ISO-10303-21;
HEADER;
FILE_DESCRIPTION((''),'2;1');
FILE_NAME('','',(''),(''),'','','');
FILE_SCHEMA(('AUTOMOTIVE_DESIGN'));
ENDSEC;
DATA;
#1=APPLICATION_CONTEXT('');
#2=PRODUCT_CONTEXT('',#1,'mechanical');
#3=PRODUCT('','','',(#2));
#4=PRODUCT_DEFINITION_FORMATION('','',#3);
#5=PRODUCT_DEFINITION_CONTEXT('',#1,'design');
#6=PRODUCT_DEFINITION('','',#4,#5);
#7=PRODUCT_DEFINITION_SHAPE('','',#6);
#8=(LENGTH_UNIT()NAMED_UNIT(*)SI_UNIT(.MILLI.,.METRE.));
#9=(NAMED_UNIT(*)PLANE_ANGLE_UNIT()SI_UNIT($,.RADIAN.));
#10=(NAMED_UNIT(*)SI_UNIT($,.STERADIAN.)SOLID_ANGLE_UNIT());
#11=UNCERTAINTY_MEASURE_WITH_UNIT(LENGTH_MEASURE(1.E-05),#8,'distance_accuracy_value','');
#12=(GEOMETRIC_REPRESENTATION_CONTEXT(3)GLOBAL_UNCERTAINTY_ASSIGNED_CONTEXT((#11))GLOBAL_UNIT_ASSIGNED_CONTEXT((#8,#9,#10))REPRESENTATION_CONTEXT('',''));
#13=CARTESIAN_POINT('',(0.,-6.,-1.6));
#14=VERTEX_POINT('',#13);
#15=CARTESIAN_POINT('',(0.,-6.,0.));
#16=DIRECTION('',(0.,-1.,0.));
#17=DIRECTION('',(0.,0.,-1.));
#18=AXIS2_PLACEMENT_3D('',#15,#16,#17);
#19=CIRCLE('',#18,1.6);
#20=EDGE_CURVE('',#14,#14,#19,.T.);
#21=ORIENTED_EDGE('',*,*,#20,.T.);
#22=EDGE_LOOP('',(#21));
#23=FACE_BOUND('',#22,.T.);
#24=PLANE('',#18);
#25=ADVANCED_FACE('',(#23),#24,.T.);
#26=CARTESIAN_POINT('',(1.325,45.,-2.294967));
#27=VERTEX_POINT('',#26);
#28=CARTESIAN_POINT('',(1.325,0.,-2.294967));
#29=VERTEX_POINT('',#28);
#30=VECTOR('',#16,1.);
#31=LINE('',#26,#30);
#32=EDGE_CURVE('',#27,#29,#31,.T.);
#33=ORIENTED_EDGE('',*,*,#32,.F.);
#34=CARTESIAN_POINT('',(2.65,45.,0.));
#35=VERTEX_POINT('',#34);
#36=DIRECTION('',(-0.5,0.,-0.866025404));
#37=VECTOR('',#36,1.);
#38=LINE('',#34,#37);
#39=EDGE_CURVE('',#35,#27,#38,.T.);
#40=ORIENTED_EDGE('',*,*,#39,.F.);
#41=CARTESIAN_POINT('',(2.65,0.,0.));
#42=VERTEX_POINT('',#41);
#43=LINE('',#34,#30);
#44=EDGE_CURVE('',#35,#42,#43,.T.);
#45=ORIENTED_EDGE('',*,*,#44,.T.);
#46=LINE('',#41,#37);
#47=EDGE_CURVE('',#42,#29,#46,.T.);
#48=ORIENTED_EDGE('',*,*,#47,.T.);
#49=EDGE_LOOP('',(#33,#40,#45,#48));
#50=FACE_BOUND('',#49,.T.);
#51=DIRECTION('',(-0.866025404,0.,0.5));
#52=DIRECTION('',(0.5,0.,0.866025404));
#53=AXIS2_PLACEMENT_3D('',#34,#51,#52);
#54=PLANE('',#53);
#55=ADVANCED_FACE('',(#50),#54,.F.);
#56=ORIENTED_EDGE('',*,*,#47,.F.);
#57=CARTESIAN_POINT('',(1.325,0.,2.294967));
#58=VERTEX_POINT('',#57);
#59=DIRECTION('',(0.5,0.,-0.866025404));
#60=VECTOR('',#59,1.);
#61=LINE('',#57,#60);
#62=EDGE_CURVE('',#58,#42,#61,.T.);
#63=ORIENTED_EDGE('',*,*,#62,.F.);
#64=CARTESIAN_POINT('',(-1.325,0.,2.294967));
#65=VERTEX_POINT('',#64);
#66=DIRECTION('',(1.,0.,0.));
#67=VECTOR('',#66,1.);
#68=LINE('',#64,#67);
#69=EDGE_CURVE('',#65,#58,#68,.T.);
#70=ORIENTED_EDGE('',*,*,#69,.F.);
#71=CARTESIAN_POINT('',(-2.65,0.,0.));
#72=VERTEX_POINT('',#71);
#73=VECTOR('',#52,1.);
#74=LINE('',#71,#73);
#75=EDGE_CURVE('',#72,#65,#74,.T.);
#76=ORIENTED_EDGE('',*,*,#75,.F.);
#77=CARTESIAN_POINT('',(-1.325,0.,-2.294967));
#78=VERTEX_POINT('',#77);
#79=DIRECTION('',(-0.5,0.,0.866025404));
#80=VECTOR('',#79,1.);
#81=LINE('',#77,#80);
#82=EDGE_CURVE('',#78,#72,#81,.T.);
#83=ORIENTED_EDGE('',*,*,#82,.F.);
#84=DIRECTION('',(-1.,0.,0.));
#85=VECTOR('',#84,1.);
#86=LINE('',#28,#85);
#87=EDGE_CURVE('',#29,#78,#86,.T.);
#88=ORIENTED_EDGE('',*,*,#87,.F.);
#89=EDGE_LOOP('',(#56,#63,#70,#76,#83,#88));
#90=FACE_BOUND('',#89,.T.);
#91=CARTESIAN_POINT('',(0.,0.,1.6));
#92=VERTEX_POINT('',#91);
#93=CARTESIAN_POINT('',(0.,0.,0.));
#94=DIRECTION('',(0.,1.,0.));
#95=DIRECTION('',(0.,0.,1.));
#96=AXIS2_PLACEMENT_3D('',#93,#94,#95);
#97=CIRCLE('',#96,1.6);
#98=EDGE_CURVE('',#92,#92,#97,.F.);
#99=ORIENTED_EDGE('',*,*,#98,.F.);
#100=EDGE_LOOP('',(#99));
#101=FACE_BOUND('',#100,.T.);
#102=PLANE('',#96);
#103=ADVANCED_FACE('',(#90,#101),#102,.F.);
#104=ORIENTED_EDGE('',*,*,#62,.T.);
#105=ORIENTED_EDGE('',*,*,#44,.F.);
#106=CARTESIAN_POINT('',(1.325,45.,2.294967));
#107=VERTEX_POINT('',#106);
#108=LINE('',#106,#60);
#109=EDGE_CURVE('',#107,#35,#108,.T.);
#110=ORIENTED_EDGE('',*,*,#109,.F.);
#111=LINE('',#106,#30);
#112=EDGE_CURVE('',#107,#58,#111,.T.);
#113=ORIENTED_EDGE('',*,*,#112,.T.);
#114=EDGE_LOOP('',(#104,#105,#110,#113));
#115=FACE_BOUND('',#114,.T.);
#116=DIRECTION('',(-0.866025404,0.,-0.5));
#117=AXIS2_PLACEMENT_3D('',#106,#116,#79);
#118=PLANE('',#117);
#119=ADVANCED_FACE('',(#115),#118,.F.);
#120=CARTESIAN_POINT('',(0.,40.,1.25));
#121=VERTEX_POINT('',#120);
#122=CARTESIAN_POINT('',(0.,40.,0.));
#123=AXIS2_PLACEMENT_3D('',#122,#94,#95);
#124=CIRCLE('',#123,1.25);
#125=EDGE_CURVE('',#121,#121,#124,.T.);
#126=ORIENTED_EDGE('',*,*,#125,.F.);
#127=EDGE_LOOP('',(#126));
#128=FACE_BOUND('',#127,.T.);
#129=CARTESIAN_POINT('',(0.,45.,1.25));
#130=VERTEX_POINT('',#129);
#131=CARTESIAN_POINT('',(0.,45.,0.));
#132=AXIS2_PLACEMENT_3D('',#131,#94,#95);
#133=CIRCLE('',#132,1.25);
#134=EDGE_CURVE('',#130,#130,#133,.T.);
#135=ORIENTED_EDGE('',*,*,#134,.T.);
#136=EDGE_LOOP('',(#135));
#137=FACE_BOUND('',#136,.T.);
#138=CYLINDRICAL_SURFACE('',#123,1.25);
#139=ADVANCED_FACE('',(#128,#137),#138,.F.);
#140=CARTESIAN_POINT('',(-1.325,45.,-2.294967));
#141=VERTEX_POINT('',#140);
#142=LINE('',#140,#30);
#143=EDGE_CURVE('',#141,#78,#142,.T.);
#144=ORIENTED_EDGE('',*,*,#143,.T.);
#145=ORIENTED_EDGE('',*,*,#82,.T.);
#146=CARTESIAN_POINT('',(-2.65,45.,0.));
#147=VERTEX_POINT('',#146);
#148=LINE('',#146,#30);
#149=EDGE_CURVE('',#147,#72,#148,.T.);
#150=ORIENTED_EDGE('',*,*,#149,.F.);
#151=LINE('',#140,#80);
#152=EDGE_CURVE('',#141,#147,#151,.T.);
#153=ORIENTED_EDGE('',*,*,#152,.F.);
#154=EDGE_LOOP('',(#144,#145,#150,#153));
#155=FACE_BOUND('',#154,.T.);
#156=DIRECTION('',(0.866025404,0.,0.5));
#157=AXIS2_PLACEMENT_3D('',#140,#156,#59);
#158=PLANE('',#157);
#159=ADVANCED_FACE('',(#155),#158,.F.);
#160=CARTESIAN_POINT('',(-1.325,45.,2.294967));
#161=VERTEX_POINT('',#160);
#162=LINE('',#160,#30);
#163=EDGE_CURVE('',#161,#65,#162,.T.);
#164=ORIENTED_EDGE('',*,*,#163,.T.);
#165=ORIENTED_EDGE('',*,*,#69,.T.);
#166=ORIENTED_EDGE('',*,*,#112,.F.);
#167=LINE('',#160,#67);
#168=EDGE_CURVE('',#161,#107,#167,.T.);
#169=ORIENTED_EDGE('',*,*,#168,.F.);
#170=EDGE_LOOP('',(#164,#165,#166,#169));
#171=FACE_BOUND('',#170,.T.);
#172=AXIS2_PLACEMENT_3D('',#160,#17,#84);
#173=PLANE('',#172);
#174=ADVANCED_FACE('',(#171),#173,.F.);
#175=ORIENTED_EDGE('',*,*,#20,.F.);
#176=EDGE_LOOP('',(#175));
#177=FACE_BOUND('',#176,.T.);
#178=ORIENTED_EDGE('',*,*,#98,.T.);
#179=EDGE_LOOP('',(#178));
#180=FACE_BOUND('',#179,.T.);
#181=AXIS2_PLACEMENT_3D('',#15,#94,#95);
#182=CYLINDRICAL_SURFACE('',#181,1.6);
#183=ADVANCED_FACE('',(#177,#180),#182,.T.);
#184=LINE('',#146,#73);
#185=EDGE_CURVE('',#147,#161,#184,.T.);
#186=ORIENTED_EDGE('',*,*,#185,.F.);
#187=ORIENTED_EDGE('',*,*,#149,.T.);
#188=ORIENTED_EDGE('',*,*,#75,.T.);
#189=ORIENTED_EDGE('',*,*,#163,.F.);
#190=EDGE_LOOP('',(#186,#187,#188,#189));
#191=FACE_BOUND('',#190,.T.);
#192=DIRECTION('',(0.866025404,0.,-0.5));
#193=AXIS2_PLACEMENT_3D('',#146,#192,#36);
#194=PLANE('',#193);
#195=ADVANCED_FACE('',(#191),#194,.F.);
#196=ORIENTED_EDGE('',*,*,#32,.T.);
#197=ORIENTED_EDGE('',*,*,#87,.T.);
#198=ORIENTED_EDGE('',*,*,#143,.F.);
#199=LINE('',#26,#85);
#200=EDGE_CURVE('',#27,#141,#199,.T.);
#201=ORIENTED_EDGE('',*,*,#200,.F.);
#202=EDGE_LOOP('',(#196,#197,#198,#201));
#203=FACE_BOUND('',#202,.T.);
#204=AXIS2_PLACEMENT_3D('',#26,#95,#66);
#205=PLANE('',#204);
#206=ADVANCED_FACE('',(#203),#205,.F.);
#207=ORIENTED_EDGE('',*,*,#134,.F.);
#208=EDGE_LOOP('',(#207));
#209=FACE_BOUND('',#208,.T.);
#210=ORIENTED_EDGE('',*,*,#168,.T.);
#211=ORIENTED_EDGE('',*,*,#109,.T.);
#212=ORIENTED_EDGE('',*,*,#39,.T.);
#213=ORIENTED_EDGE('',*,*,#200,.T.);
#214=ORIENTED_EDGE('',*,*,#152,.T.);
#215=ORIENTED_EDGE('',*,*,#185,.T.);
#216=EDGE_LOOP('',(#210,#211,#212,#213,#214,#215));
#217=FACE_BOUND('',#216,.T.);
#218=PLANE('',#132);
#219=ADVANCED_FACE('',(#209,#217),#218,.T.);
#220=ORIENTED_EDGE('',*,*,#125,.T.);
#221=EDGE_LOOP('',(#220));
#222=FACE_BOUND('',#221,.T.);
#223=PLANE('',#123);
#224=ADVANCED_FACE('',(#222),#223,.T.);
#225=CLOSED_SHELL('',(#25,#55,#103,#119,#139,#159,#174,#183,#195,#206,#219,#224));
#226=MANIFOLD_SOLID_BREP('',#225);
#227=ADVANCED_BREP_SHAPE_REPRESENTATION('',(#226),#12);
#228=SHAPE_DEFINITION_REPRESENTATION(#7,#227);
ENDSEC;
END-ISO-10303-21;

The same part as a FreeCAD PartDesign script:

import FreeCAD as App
import Part
import Sketcher
from FreeCAD import Vector
Q = App.Units.Quantity


def add_polygon(sketch, points):
    """Adds a closed chain of lines whose ends are joined by coincident constraints."""
    first, n = sketch.GeometryCount, len(points)
    for a, b in zip(points, points[1:] + points[:1]):
        sketch.addGeometry(Part.LineSegment(App.Vector(*a, 0), App.Vector(*b, 0)), False)
    for i in range(n):
        sketch.addConstraint(Sketcher.Constraint("Coincident", first + i, 2, first + (i + 1) % n, 1))

doc = App.newDocument("Part")
body = doc.addObject("PartDesign::Body", "Body")

# Sketch on XZ plane
sketch1 = doc.addObject("Sketcher::SketchObject", "Sketch")
body.addObject(sketch1)
sketch1.AttachmentSupport = (doc.XZ_Plane, [""])
sketch1.MapMode = "FlatFace"
add_polygon(sketch1, [(1.3, 2.3), (2.6, 0), (1.3, -2.3), (-1.3, -2.3), (-2.6, 0), (-1.3, 2.3)])  # lines 0-5
sketch1.addConstraint([
    Sketcher.Constraint("Horizontal", 2),
    Sketcher.Constraint("Horizontal", 5),
    Sketcher.Constraint("Symmetric", 0, 2, 3, 2, -1, 1),
    Sketcher.Constraint("Symmetric", 1, 2, 4, 2, -1, 1),
    Sketcher.Constraint("PointOnObject", 0, 2, -1),
    Sketcher.Constraint("Parallel", 0, 3),
    Sketcher.Constraint("Vertical", 2, 2, 4, 2),
    Sketcher.Constraint("Angle", 0, Q("-60 deg")),
    Sketcher.Constraint("DistanceX", 2, 2, 2, 1, Q("2.65 mm")),
    Sketcher.Constraint("DistanceX", 3, 2, 0, 2, Q("5.3 mm")),
])
pad1 = doc.addObject("PartDesign::Pad", "Pad")
body.addObject(pad1)
pad1.Profile = sketch1
pad1.Length = 45
pad1.Reversed = True

# Sketch on XZ plane
sketch2 = doc.addObject("Sketcher::SketchObject", "Sketch001")
body.addObject(sketch2)
sketch2.AttachmentSupport = (doc.XZ_Plane, [""])
sketch2.MapMode = "FlatFace"
sketch2.addGeometry(Part.Circle(Vector(0, 0, 0), Vector(0, 0, 1), 1.6), False)
sketch2.addConstraint([
    Sketcher.Constraint("Coincident", 0, 3, -1, 1),
    Sketcher.Constraint("Diameter", 0, Q("3.2 mm")),
])
pad2 = doc.addObject("PartDesign::Pad", "Pad001")
body.addObject(pad2)
pad2.Profile = sketch2
pad2.Length = 6

# Sketch on XZ plane
sketch3 = doc.addObject("Sketcher::SketchObject", "Sketch002")
body.addObject(sketch3)
sketch3.AttachmentSupport = (doc.XZ_Plane, [""])
sketch3.MapMode = "FlatFace"
sketch3.AttachmentOffset = App.Placement(Vector(0, 0, -45), App.Rotation())
sketch3.addGeometry(Part.Circle(Vector(0, 0, 0), Vector(0, 0, 1), 1.2), False)
sketch3.addConstraint([
    Sketcher.Constraint("Coincident", 0, 3, -1, 1),
    Sketcher.Constraint("Diameter", 0, Q("2.5 mm")),
])
pocket1 = doc.addObject("PartDesign::Pocket", "Pocket")
body.addObject(pocket1)
pocket1.Profile = sketch3
pocket1.Length = 5
pocket1.Reversed = True

doc.recompute()
